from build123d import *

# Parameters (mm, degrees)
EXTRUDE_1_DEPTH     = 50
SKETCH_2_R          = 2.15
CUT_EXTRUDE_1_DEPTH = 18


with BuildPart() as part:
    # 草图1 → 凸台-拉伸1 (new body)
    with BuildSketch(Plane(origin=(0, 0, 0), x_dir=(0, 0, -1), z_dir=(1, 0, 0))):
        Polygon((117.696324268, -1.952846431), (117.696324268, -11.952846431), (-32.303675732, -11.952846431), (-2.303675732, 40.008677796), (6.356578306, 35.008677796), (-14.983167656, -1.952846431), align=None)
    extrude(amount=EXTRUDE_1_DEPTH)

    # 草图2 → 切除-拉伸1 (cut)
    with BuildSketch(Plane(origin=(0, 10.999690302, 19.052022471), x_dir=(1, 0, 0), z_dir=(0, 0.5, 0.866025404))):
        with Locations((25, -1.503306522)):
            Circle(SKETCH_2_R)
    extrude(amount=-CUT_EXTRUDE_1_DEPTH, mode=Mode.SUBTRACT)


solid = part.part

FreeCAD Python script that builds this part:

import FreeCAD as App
import Part
import Sketcher

V = App.Vector
Q = App.Units.Quantity


def add_polygon(sketch, points):
    """Adds a closed chain of lines whose ends are joined by coincident constraints."""
    first, n = sketch.GeometryCount, len(points)
    for a, b in zip(points, points[1:] + points[:1]):
        sketch.addGeometry(Part.LineSegment(App.Vector(*a, 0), App.Vector(*b, 0)), False)
    for i in range(n):
        sketch.addConstraint(Sketcher.Constraint("Coincident", first + i, 2, first + (i + 1) % n, 1))

doc = App.newDocument("Part")
body = doc.addObject("PartDesign::Body", "Body")

sketch1 = doc.addObject("Sketcher::SketchObject", "Sketch")
body.addObject(sketch1)
sketch1.AttachmentSupport = (doc.YZ_Plane, [""])
sketch1.MapMode = "FlatFace"
add_polygon(sketch1, [(-12, -118), (-2, -118), (-2, 15), (35, -6), (40, 2), (-12, 32)])
sketch1.addConstraint(Sketcher.Constraint("Horizontal", 0))
sketch1.addConstraint(Sketcher.Constraint("Vertical", 1))
sketch1.addConstraint(Sketcher.Constraint("Vertical", 5))
sketch1.addConstraint(Sketcher.Constraint("Perpendicular", 2, 3))
sketch1.addConstraint(Sketcher.Constraint("Perpendicular", 3, 4))
sketch1.addConstraint(Sketcher.Constraint("DistanceX", 0, 1, 0, 2, 10.0))
sketch1.addConstraint(Sketcher.Constraint("DistanceY", 5, 2, 5, 1, 150.0))
sketch1.addConstraint(Sketcher.Constraint("Angle", 2, Q("-30 deg")))
sketch1.addConstraint(Sketcher.Constraint("Distance", 3, 10.0))
sketch1.addConstraint(Sketcher.Constraint("Distance", 4, 60.0))
sketch1.addConstraint(Sketcher.Constraint("DistanceY", 2, 2, -1, 1, 6.356578))
sketch1.addConstraint(Sketcher.Constraint("DistanceX", 0, 2, -1, 1, 1.952846))
pad1 = doc.addObject("PartDesign::Pad", "Pad")
body.addObject(pad1)
pad1.Profile = sketch1
pad1.Length = 50

sketch2 = doc.addObject("Sketcher::SketchObject", "Sketch001")
body.addObject(sketch2)
sketch2.Placement = App.Placement(V(0, 10.99969, 19.052022), App.Rotation(V(1, 0, 0), V(0, 0.866025404, -0.5), V(0, 0.5, 0.866025404), "ZXY"))
sketch2.addGeometry(Part.Circle(V(25, -1.5, 0), V(0, 0, 1), 2.1), False)
sketch2.addConstraint(Sketcher.Constraint("Diameter", 0, 4.3))
sketch2.addConstraint(Sketcher.Constraint("DistanceX", -1, 1, 0, 3, 25.0))
sketch2.addConstraint(Sketcher.Constraint("DistanceY", 0, 3, -1, 1, 1.503307))
pocket1 = doc.addObject("PartDesign::Pocket", "Pocket")
body.addObject(pocket1)
pocket1.Profile = sketch2
pocket1.Length = 18

doc.recompute()
